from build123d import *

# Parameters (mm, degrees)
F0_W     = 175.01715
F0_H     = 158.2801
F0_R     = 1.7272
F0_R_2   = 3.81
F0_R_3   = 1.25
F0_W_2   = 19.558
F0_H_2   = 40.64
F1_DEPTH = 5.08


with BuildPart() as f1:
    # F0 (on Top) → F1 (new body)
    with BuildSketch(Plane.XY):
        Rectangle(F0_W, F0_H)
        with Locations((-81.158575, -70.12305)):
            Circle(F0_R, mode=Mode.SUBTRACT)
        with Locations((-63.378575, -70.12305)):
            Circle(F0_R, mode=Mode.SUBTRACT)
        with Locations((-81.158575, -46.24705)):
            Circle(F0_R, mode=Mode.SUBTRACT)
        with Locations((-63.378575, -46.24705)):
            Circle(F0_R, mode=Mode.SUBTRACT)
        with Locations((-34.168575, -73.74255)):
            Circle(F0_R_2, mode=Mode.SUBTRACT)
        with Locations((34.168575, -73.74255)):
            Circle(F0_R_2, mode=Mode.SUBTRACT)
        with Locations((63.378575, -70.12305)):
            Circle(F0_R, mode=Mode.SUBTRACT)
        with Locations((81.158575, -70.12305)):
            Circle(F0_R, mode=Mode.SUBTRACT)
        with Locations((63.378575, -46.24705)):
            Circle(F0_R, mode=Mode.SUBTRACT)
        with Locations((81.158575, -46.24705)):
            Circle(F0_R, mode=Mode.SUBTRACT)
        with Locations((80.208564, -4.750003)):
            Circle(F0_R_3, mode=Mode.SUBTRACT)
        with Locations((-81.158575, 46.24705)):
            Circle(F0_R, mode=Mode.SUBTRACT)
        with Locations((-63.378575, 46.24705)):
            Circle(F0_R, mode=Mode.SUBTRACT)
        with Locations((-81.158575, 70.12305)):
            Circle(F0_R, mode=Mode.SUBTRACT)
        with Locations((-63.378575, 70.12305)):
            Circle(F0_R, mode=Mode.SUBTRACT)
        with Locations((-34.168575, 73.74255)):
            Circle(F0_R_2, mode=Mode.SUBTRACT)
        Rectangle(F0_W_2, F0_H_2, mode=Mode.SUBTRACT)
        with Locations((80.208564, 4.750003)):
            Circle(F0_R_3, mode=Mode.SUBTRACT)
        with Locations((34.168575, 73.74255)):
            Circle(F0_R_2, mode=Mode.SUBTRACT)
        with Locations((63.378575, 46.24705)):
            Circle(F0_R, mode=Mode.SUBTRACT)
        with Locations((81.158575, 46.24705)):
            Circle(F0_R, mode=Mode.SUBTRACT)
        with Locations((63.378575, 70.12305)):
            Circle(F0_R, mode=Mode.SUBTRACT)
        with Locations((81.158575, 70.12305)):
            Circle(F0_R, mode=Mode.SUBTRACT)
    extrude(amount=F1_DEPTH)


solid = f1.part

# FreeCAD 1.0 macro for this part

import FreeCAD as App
import Part
import Sketcher
from FreeCAD import Vector
Q = App.Units.Quantity


def add_polygon(sketch, points):
    """Adds a closed chain of lines whose ends are joined by coincident constraints."""
    first, n = sketch.GeometryCount, len(points)
    for a, b in zip(points, points[1:] + points[:1]):
        sketch.addGeometry(Part.LineSegment(App.Vector(*a, 0), App.Vector(*b, 0)), False)
    for i in range(n):
        sketch.addConstraint(Sketcher.Constraint("Coincident", first + i, 2, first + (i + 1) % n, 1))

doc = App.newDocument("Part")
params = doc.addObject("Spreadsheet::Sheet", "Params")
for row, (alias, value) in enumerate([
    ("sketch1_diameter", "0.3 in"),
    ("sketch1_diameter2", "0.136 in"),
    ("sketch1_height", "1.6 in"),
    ("sketch1_width", "0.77 in"),
    ("pad1_length", "0.2 in"),
], start=1):
    params.set(f"A{row}", alias)
    params.set(f"B{row}", "=" + value)
    params.setAlias(f"B{row}", alias)

body = doc.addObject("PartDesign::Body", "Body")

sketch1 = doc.addObject("Sketcher::SketchObject", "Sketch")
body.addObject(sketch1)
sketch1.AttachmentSupport = (doc.XY_Plane, [""])
sketch1.MapMode = "FlatFace"
add_polygon(sketch1, [(-87.5, 79.1), (-87.5, -79.1), (87.5, -79.1), (87.5, 79.1)])
sketch1.addGeometry(Part.Circle(Vector(-81.2, -70.1, 0), Vector(0, 0, 1), 1.7), False)
sketch1.addGeometry(Part.Circle(Vector(-63.4, -70.1, 0), Vector(0, 0, 1), 1.7), False)
sketch1.addGeometry(Part.Circle(Vector(-81.2, -46.2, 0), Vector(0, 0, 1), 1.7), False)
sketch1.addGeometry(Part.Circle(Vector(-63.4, -46.2, 0), Vector(0, 0, 1), 1.7), False)
sketch1.addGeometry(Part.Circle(Vector(-34.2, -73.7, 0), Vector(0, 0, 1), 3.8), False)
sketch1.addGeometry(Part.Circle(Vector(34.2, -73.7, 0), Vector(0, 0, 1), 3.8), False)
sketch1.addGeometry(Part.Circle(Vector(63.4, -70.1, 0), Vector(0, 0, 1), 1.7), False)
sketch1.addGeometry(Part.Circle(Vector(81.2, -70.1, 0), Vector(0, 0, 1), 1.7), False)
sketch1.addGeometry(Part.Circle(Vector(63.4, -46.2, 0), Vector(0, 0, 1), 1.7), False)
sketch1.addGeometry(Part.Circle(Vector(81.2, -46.2, 0), Vector(0, 0, 1), 1.7), False)
sketch1.addGeometry(Part.Circle(Vector(80.2, -4.8, 0), Vector(0, 0, 1), 1.2), False)
sketch1.addGeometry(Part.Circle(Vector(-81.2, 46.2, 0), Vector(0, 0, 1), 1.7), False)
sketch1.addGeometry(Part.Circle(Vector(-63.4, 46.2, 0), Vector(0, 0, 1), 1.7), False)
sketch1.addGeometry(Part.Circle(Vector(-81.2, 70.1, 0), Vector(0, 0, 1), 1.7), False)
sketch1.addGeometry(Part.Circle(Vector(-63.4, 70.1, 0), Vector(0, 0, 1), 1.7), False)
sketch1.addGeometry(Part.Circle(Vector(-34.2, 73.7, 0), Vector(0, 0, 1), 3.8), False)
add_polygon(sketch1, [(9.8, -20.3), (-9.8, -20.3), (-9.8, 20.3), (9.8, 20.3)])
sketch1.addGeometry(Part.Circle(Vector(80.2, 4.8, 0), Vector(0, 0, 1), 1.2), False)
sketch1.addGeometry(Part.Circle(Vector(34.2, 73.7, 0), Vector(0, 0, 1), 3.8), False)
sketch1.addGeometry(Part.Circle(Vector(63.4, 46.2, 0), Vector(0, 0, 1), 1.7), False)
sketch1.addGeometry(Part.Circle(Vector(81.2, 46.2, 0), Vector(0, 0, 1), 1.7), False)
sketch1.addGeometry(Part.Circle(Vector(63.4, 70.1, 0), Vector(0, 0, 1), 1.7), False)
sketch1.addGeometry(Part.Circle(Vector(81.2, 70.1, 0), Vector(0, 0, 1), 1.7), False)
sketch1.addConstraint([
    Sketcher.Constraint("Vertical", 0),
    Sketcher.Constraint("Horizontal", 1),
    Sketcher.Constraint("Vertical", 2),
    Sketcher.Constraint("Horizontal", 3),
    Sketcher.Constraint("Horizontal", 20),
    Sketcher.Constraint("Vertical", 21),
    Sketcher.Constraint("Horizontal", 22),
    Sketcher.Constraint("Vertical", 23),
    Sketcher.Constraint("Equal", 4, 5),
    Sketcher.Constraint("Equal", 5, 6),
    Sketcher.Constraint("Equal", 6, 7),
    Sketcher.Constraint("Equal", 8, 9),
    Sketcher.Constraint("Equal", 7, 10),
    Sketcher.Constraint("Equal", 10, 11),
    Sketcher.Constraint("Equal", 11, 12),
    Sketcher.Constraint("Equal", 12, 13),
    Sketcher.Constraint("Equal", 13, 15),
    Sketcher.Constraint("Equal", 15, 16),
    Sketcher.Constraint("Equal", 16, 17),
    Sketcher.Constraint("Equal", 17, 18),
    Sketcher.Constraint("Equal", 9, 19),
    Sketcher.Constraint("Equal", 14, 24),
    Sketcher.Constraint("Equal", 19, 25),
    Sketcher.Constraint("Equal", 18, 26),
    Sketcher.Constraint("Equal", 26, 27),
    Sketcher.Constraint("Equal", 27, 28),
    Sketcher.Constraint("Equal", 28, 29),
    Sketcher.Constraint("Symmetric", 13, 3, 15, 3, -1, 1),
    Sketcher.Constraint("Symmetric", 12, 3, 16, 3, -1, 1),
    Sketcher.Constraint("Symmetric", 11, 3, 17, 3, -1, 1),
    Sketcher.Constraint("Symmetric", 10, 3, 18, 3, -1, 1),
    Sketcher.Constraint("Symmetric", 9, 3, 19, 3, -1, 1),
    Sketcher.Constraint("Symmetric", 8, 3, 25, 3, -1, 1),
    Sketcher.Constraint("Symmetric", 7, 3, 26, 3, -1, 1),
    Sketcher.Constraint("Symmetric", 6, 3, 27, 3, -1, 1),
    Sketcher.Constraint("Symmetric", 5, 3, 28, 3, -1, 1),
    Sketcher.Constraint("Symmetric", 4, 3, 29, 3, -1, 1),
    Sketcher.Constraint("Symmetric", 0, 2, 2, 2, -1, 1),
    Sketcher.Constraint("Symmetric", 20, 2, 22, 2, -1, 1),
    Sketcher.Constraint("Symmetric", 8, 3, 9, 3, -2),
    Sketcher.Constraint("Symmetric", 5, 3, 10, 3, -2),
    Sketcher.Constraint("Symmetric", 4, 3, 11, 3, -2),
    Sketcher.Constraint("Symmetric", 7, 3, 12, 3, -2),
    Sketcher.Constraint("Symmetric", 6, 3, 13, 3, -2),
    Sketcher.Constraint("Symmetric", 14, 3, 24, 3, -1),
    Sketcher.Constraint("Horizontal", 4, 3, 5, 3),
    Sketcher.Constraint("Horizontal", 6, 3, 7, 3),
    Sketcher.Constraint("Vertical", 4, 3, 6, 3),
    Sketcher.Constraint("Vertical", 5, 3, 7, 3),
    Sketcher.Constraint("Diameter", 8, Q("0.3 in")),
    Sketcher.Constraint("Diameter", 4, Q("0.136 in")),
    Sketcher.Constraint("DistanceY", 21, 1, 21, 2, Q("1.6 in")),
    Sketcher.Constraint("DistanceX", 20, 2, 20, 1, Q("0.77 in")),
    Sketcher.Constraint("DistanceX", 4, 3, 5, 3, Q("0.7 in")),
    Sketcher.Constraint("DistanceX", 0, 2, 8, 3, Q("2.1 in")),
    Sketcher.Constraint("Diameter", 14, 2.5),
    Sketcher.Constraint("DistanceY", 4, 3, 6, 3, Q("0.94 in")),
    Sketcher.Constraint("DistanceX", 5, 3, 8, 3, Q("1.15 in")),
    Sketcher.Constraint("DistanceY", 0, 2, 0, 1, Q("6.2315 in")),
    Sketcher.Constraint("DistanceY", 8, 3, 15, 3, Q("4.724 in")),
    Sketcher.Constraint("DistanceY", 0, 2, 4, 3, Q("0.355 in")),
    Sketcher.Constraint("DistanceX", 1, 1, 1, 2, 175.01715),
    Sketcher.Constraint("DistanceX", 14, 3, 13, 3, 0.950011),
    Sketcher.Constraint("DistanceY", 14, 3, -1, 1, 4.750003),
])
sketch1.setExpression("Constraints[57]", "Params.sketch1_diameter")
sketch1.setExpression("Constraints[58]", "Params.sketch1_diameter2")
sketch1.setExpression("Constraints[59]", "Params.sketch1_height")
sketch1.setExpression("Constraints[60]", "Params.sketch1_width")
pad1 = doc.addObject("PartDesign::Pad", "Pad")
body.addObject(pad1)
pad1.Profile = sketch1
pad1.setExpression("Length", "Params.pad1_length")

doc.recompute()
